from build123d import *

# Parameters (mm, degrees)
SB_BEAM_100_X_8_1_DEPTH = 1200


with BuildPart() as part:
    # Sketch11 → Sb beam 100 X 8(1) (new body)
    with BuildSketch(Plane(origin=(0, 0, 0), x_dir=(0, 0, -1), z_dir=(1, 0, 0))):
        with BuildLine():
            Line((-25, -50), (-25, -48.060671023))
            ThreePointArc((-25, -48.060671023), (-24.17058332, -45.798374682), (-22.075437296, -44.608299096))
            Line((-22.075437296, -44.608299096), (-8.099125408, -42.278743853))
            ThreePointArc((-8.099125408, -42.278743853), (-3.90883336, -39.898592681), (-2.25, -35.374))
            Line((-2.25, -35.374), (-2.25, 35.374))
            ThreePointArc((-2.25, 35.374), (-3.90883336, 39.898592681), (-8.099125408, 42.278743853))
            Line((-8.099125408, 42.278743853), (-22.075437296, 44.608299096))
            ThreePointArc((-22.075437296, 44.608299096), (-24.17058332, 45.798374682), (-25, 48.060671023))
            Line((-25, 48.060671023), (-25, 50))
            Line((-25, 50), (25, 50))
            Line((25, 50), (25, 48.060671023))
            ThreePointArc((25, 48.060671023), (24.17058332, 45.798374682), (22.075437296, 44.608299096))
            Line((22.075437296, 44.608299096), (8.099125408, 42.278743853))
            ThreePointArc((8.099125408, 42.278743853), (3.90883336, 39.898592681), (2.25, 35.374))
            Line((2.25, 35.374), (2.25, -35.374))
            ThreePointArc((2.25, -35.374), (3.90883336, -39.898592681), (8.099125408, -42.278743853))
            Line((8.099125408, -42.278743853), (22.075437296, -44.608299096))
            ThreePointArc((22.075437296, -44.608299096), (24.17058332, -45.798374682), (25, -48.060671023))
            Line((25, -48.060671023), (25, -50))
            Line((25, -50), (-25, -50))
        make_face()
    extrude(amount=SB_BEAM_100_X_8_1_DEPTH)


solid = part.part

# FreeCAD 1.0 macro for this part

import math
import FreeCAD as App
import Part
import Sketcher

V = App.Vector
Q = App.Units.Quantity

doc = App.newDocument("Part")
params = doc.addObject("Spreadsheet::Sheet", "Params")
for row, (alias, value) in enumerate([
    ("sketch1_radius", "7 mm"),
    ("sketch1_radius2", "3.5 mm"),
    ("sketch1_height", "50 mm"),
    ("pad1_length", "1200 mm"),
], start=1):
    params.set(f"A{row}", alias)
    params.set(f"B{row}", "=" + value)
    params.setAlias(f"B{row}", alias)

body = doc.addObject("PartDesign::Body", "Body")

# Sketch on YZ plane
sketch1 = body.newObject("Sketcher::SketchObject", "Sketch")
sketch1.AttachmentSupport = (doc.getObject("YZ_Plane"), [""])
sketch1.MapMode = "FlatFace"
sketch1.addGeometry(Part.LineSegment(V(-48.1, 25, 0), V(-50, 25, 0)), False)
sketch1.addGeometry(Part.LineSegment(V(-50, 25, 0), V(-50, -25, 0)), False)
sketch1.addGeometry(Part.LineSegment(V(-50, -25, 0), V(-48.1, -25, 0)), False)
sketch1.addGeometry(Part.ArcOfCircle(Part.Circle(V(-48.1, -21.5, 0), V(0, 0, 1), 3.5), math.radians(-90), math.radians(-9)), False)
sketch1.addGeometry(Part.LineSegment(V(-44.6, -22.1, 0), V(-42.3, -8.1, 0)), False)
sketch1.addGeometry(Part.ArcOfCircle(Part.Circle(V(-35.4, -9.2, 0), V(0, 0, 1), 7), math.radians(90), math.radians(171)), False)
sketch1.addGeometry(Part.LineSegment(V(-35.4, -2.2, 0), V(35.4, -2.2, 0)), False)
sketch1.addGeometry(Part.ArcOfCircle(Part.Circle(V(35.4, -9.2, 0), V(0, 0, 1), 7), math.radians(9), math.radians(90)), False)
sketch1.addGeometry(Part.LineSegment(V(42.3, -8.1, 0), V(44.6, -22.1, 0)), False)
sketch1.addGeometry(Part.ArcOfCircle(Part.Circle(V(48.1, -21.5, 0), V(0, 0, 1), 3.5), math.radians(-171), math.radians(-90)), False)
sketch1.addGeometry(Part.LineSegment(V(48.1, -25, 0), V(50, -25, 0)), False)
sketch1.addGeometry(Part.LineSegment(V(50, -25, 0), V(50, 25, 0)), False)
sketch1.addGeometry(Part.LineSegment(V(50, 25, 0), V(48.1, 25, 0)), False)
sketch1.addGeometry(Part.ArcOfCircle(Part.Circle(V(48.1, 21.5, 0), V(0, 0, 1), 3.5), math.radians(90), math.radians(171)), False)
sketch1.addGeometry(Part.LineSegment(V(44.6, 22.1, 0), V(42.3, 8.1, 0)), False)
sketch1.addGeometry(Part.ArcOfCircle(Part.Circle(V(35.4, 9.2, 0), V(0, 0, 1), 7), math.radians(-90), math.radians(-9)), False)
sketch1.addGeometry(Part.LineSegment(V(35.4, 2.2, 0), V(-35.4, 2.2, 0)), False)
sketch1.addGeometry(Part.ArcOfCircle(Part.Circle(V(-35.4, 9.2, 0), V(0, 0, 1), 7), math.radians(-171), math.radians(-90)), False)
sketch1.addGeometry(Part.LineSegment(V(-42.3, 8.1, 0), V(-44.6, 22.1, 0)), False)
sketch1.addGeometry(Part.ArcOfCircle(Part.Circle(V(-48.1, 21.5, 0), V(0, 0, 1), 3.5), math.radians(9), math.radians(90)), False)
sketch1.addConstraint(Sketcher.Constraint("Coincident", 0, 2, 1, 1))
sketch1.addConstraint(Sketcher.Constraint("Coincident", 1, 2, 2, 1))
sketch1.addConstraint(Sketcher.Constraint("Tangent", 2, 2, 3, 1))
sketch1.addConstraint(Sketcher.Constraint("Tangent", 3, 2, 4, 1))
sketch1.addConstraint(Sketcher.Constraint("Tangent", 4, 2, 5, 2))
sketch1.addConstraint(Sketcher.Constraint("Tangent", 5, 1, 6, 1))
sketch1.addConstraint(Sketcher.Constraint("Tangent", 6, 2, 7, 2))
sketch1.addConstraint(Sketcher.Constraint("Tangent", 7, 1, 8, 1))
sketch1.addConstraint(Sketcher.Constraint("Tangent", 8, 2, 9, 1))
sketch1.addConstraint(Sketcher.Constraint("Tangent", 9, 2, 10, 1))
sketch1.addConstraint(Sketcher.Constraint("Coincident", 10, 2, 11, 1))
sketch1.addConstraint(Sketcher.Constraint("Coincident", 11, 2, 12, 1))
sketch1.addConstraint(Sketcher.Constraint("Tangent", 12, 2, 13, 1))
sketch1.addConstraint(Sketcher.Constraint("Tangent", 13, 2, 14, 1))
sketch1.addConstraint(Sketcher.Constraint("Tangent", 14, 2, 15, 2))
sketch1.addConstraint(Sketcher.Constraint("Tangent", 15, 1, 16, 1))
sketch1.addConstraint(Sketcher.Constraint("Tangent", 16, 2, 17, 2))
sketch1.addConstraint(Sketcher.Constraint("Tangent", 17, 1, 18, 1))
sketch1.addConstraint(Sketcher.Constraint("Tangent", 18, 2, 19, 1))
sketch1.addConstraint(Sketcher.Constraint("Tangent", 19, 2, 0, 1))
sketch1.addConstraint(Sketcher.Constraint("Horizontal", 0))
sketch1.addConstraint(Sketcher.Constraint("Vertical", 1))
sketch1.addConstraint(Sketcher.Constraint("Horizontal", 2))
sketch1.addConstraint(Sketcher.Constraint("Horizontal", 6))
sketch1.addConstraint(Sketcher.Constraint("Horizontal", 10))
sketch1.addConstraint(Sketcher.Constraint("Vertical", 11))
sketch1.addConstraint(Sketcher.Constraint("Horizontal", 12))
sketch1.addConstraint(Sketcher.Constraint("Horizontal", 16))
sketch1.addConstraint(Sketcher.Constraint("Equal", 5, 7))
sketch1.addConstraint(Sketcher.Constraint("Equal", 3, 9))
sketch1.addConstraint(Sketcher.Constraint("Equal", 9, 13))
sketch1.addConstraint(Sketcher.Constraint("Equal", 7, 15))
sketch1.addConstraint(Sketcher.Constraint("Equal", 15, 17))
sketch1.addConstraint(Sketcher.Constraint("Equal", 13, 19))
sketch1.addConstraint(Sketcher.Constraint("Symmetric", 3, 3, 13, 3, -1, 1))
sketch1.addConstraint(Sketcher.Constraint("Symmetric", 5, 3, 15, 3, -1, 1))
sketch1.addConstraint(Sketcher.Constraint("Symmetric", 9, 3, 19, 3, -1, 1))
sketch1.addConstraint(Sketcher.Constraint("Symmetric", 3, 3, 9, 3, -2))
sketch1.addConstraint(Sketcher.Constraint("Parallel", 8, 18))
sketch1.addConstraint(Sketcher.Constraint("Horizontal", 4, 2, 7, 1))
sketch1.addConstraint(Sketcher.Constraint("Equal", 2, 10))
sketch1.addConstraint(Sketcher.Constraint("Radius", 5, Q("7 mm")))
sketch1.addConstraint(Sketcher.Constraint("Radius", 3, Q("3.5 mm")))
sketch1.addConstraint(Sketcher.Constraint("DistanceY", 1, 2, 1, 1, Q("50 mm")))
sketch1.addConstraint(Sketcher.Constraint("DistanceX", 0, 2, -1, 1, Q("50 mm")))
sketch1.addConstraint(Sketcher.Constraint("DistanceY", 7, 3, 15, 3, Q("18.5 mm")))
sketch1.addConstraint(Sketcher.Constraint("DistanceX", 6, 1, 6, 2, Q("70.748 mm")))
sketch1.addConstraint(Sketcher.Constraint("DistanceX", 0, 2, 0, 1, Q("1.939329 mm")))
sketch1.setExpression("Constraints[41]", "Params.sketch1_radius")
sketch1.setExpression("Constraints[42]", "Params.sketch1_radius2")
sketch1.setExpression("Constraints[43]", "Params.sketch1_height")
pad1 = body.newObject("PartDesign::Pad", "Pad")
pad1.Profile = sketch1
pad1.setExpression("Length", "Params.pad1_length")

doc.recompute()
